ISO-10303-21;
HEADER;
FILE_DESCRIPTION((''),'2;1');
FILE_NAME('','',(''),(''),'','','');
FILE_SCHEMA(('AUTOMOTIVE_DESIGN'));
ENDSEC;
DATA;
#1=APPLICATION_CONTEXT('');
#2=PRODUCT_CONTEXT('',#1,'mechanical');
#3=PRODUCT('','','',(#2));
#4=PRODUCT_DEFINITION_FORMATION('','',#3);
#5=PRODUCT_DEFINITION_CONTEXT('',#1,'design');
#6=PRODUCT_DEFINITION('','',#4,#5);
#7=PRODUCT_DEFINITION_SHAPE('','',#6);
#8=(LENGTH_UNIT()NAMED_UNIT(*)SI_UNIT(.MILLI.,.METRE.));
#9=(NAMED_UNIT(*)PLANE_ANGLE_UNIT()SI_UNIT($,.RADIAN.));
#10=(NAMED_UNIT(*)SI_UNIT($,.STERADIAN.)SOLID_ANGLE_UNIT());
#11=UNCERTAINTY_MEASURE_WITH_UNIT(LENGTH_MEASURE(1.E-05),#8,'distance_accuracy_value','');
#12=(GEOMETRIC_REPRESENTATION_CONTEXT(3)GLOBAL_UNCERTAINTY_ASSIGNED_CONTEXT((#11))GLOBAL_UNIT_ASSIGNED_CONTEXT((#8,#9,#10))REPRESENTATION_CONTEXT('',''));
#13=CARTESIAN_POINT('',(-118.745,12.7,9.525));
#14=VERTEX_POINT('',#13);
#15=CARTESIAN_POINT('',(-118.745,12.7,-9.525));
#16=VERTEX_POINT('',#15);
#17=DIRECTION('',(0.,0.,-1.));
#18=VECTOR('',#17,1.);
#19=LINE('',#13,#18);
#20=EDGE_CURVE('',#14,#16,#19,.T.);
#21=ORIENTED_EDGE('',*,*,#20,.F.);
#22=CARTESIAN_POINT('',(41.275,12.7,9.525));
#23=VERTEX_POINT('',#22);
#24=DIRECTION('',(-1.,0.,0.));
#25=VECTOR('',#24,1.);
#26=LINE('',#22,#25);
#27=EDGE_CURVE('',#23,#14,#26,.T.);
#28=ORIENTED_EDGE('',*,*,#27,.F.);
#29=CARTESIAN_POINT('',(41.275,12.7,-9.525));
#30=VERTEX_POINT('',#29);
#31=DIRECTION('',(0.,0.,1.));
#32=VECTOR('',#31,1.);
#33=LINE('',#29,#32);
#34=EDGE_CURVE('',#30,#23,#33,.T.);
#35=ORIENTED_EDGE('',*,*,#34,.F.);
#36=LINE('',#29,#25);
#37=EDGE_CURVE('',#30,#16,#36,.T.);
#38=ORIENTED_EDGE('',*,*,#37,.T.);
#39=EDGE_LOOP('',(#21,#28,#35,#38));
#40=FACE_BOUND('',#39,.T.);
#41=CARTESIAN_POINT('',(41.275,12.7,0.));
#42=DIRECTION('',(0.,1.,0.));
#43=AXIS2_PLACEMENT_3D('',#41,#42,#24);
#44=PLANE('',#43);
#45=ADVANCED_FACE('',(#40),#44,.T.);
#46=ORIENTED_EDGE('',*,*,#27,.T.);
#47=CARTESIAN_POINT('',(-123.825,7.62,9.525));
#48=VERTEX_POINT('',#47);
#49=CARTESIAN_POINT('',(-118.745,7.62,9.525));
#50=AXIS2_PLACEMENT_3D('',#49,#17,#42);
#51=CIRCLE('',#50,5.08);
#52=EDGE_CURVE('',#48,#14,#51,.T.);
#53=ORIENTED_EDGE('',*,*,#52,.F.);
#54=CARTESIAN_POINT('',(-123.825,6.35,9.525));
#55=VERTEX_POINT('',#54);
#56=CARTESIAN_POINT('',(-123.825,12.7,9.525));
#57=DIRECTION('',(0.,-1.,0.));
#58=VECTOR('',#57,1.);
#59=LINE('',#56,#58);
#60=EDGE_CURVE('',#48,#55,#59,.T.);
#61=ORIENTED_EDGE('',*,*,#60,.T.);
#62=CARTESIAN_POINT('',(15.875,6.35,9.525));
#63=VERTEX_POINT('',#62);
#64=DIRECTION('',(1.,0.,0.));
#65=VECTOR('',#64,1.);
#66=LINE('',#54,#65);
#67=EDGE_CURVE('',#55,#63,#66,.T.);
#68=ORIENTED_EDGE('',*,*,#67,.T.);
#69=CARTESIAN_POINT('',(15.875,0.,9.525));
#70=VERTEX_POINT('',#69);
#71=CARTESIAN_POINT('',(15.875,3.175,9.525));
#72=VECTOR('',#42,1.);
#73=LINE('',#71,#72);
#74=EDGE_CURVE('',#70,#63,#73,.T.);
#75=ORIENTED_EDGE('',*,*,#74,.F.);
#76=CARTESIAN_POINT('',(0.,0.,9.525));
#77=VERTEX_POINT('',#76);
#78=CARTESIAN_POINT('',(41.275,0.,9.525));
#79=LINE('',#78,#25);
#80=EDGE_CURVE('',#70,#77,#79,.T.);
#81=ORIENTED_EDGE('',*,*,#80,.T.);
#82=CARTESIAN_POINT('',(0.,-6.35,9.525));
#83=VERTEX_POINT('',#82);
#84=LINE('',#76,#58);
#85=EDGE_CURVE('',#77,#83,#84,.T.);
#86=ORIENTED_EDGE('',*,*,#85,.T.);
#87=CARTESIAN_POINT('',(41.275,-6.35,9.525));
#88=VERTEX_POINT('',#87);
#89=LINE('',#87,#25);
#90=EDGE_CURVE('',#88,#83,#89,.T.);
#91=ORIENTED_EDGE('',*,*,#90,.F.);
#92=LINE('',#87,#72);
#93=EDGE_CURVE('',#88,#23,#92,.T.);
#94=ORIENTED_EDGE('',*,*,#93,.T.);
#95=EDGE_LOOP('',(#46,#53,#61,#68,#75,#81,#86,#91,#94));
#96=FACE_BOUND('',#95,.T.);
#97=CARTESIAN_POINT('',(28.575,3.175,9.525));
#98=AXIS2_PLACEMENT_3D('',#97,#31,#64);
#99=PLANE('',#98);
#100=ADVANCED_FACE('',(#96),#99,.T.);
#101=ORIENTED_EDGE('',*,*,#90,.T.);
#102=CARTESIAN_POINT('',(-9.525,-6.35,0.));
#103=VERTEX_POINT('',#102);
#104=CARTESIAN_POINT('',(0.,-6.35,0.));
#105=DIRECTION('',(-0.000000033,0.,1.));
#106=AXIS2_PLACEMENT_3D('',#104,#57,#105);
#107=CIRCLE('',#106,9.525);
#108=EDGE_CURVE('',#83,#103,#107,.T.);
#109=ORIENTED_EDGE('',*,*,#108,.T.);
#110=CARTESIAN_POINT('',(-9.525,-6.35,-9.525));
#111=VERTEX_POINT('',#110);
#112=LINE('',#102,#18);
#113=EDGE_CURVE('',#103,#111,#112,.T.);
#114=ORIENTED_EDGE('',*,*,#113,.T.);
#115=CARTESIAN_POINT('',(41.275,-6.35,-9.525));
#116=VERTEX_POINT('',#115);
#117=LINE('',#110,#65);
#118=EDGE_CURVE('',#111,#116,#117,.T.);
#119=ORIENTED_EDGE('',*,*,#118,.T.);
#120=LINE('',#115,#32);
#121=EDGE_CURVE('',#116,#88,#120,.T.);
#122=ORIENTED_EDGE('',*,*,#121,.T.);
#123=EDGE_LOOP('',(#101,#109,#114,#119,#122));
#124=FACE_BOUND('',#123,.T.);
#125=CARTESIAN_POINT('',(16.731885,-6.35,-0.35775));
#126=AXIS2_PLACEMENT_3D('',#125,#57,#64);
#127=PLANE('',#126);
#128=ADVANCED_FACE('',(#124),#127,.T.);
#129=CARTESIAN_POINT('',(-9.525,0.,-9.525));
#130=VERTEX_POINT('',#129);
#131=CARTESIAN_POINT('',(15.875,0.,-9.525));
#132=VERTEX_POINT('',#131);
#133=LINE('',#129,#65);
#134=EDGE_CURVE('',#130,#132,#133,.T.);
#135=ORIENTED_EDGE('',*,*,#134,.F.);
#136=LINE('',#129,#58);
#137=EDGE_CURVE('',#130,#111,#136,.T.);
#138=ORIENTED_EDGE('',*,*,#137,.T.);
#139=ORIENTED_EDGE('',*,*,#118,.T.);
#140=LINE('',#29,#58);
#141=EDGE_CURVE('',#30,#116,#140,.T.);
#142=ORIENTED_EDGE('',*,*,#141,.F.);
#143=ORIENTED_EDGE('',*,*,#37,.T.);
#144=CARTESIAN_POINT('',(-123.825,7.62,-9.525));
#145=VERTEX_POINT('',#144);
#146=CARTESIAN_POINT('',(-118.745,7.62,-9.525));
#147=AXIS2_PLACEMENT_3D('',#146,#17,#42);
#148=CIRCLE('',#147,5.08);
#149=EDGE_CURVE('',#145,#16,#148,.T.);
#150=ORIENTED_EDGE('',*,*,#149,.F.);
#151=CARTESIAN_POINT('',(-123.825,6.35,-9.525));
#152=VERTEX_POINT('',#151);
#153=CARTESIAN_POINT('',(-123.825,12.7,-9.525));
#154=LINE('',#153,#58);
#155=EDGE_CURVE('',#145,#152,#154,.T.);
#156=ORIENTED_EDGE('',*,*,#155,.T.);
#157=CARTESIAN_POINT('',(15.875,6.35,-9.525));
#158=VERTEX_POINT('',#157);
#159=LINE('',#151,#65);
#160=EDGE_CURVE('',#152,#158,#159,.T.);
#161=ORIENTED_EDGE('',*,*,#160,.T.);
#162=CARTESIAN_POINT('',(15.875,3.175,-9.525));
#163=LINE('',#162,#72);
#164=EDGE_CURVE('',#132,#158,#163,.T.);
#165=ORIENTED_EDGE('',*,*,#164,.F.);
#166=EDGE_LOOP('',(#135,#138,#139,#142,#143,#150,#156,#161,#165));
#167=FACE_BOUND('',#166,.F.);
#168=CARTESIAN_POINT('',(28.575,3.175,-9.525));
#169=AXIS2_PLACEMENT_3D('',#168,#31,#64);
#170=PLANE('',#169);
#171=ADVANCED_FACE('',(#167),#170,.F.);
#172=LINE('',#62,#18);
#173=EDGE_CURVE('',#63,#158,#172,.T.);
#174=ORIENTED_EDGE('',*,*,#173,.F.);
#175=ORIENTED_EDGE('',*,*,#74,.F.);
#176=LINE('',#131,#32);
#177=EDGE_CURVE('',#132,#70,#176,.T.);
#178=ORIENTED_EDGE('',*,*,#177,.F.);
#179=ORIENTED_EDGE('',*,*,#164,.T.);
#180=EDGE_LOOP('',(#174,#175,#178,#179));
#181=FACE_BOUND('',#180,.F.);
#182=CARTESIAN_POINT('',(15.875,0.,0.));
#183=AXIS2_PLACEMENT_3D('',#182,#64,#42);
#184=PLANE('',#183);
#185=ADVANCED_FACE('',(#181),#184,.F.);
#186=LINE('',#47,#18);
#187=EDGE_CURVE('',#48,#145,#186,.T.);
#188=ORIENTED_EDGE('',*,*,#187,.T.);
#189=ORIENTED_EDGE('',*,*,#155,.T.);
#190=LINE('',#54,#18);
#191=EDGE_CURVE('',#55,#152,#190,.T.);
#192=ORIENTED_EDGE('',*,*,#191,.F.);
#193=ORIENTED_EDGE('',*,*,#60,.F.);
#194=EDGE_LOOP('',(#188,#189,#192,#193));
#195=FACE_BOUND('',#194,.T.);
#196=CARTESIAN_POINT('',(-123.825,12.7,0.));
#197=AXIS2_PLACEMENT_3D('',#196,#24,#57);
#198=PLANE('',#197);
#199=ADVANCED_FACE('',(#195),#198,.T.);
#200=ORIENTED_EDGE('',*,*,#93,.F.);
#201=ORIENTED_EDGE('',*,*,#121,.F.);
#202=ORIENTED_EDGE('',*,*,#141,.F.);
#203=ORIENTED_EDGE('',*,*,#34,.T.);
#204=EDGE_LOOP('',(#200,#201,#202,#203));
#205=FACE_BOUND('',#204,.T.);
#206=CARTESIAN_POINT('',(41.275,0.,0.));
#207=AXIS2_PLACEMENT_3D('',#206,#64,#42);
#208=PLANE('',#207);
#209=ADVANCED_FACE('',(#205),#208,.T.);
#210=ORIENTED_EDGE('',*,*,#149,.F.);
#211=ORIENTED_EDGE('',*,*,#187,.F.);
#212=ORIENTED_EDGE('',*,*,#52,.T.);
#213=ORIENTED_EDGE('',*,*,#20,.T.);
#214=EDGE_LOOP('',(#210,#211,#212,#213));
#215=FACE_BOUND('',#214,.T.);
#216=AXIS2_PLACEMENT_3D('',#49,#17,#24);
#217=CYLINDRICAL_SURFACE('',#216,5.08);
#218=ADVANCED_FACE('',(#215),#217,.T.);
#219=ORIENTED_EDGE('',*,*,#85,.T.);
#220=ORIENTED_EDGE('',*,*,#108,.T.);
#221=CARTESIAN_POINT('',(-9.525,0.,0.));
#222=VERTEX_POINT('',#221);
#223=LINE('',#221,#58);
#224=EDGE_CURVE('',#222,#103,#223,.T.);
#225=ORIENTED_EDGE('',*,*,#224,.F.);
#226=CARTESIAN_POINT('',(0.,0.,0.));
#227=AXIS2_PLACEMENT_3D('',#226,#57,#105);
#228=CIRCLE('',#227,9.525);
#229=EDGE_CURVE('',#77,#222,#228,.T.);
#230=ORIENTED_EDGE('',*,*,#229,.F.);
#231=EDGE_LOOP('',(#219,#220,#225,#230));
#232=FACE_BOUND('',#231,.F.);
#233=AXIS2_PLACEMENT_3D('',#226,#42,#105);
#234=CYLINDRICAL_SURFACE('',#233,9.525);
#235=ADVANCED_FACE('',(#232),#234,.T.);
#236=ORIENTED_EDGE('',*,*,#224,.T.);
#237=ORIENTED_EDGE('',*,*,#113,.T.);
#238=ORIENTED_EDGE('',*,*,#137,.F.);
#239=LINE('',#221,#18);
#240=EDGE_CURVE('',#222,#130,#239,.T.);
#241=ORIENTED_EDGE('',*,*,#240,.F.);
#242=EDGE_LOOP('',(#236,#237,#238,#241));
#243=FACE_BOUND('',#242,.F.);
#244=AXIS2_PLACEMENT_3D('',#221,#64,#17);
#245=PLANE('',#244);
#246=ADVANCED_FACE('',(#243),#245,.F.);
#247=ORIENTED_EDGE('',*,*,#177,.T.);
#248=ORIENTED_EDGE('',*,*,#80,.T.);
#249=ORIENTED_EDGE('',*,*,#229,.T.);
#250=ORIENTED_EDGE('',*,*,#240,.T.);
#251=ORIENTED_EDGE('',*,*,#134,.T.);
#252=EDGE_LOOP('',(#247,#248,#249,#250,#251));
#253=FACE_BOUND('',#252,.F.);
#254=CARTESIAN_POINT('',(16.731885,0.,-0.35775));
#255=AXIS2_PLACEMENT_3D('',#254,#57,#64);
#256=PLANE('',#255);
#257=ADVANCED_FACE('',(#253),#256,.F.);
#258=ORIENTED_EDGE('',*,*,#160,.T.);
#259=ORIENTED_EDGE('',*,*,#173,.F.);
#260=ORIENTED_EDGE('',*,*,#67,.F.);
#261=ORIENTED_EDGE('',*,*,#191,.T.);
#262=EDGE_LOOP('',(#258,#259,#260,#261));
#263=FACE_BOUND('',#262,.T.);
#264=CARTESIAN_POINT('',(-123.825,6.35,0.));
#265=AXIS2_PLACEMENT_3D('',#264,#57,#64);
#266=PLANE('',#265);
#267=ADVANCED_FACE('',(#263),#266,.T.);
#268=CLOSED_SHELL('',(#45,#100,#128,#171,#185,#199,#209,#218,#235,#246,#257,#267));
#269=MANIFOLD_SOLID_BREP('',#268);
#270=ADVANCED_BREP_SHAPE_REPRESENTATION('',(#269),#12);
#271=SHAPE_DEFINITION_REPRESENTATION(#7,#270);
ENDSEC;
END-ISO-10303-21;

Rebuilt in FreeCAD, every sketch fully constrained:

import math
import FreeCAD as App
import Part
import Sketcher
from FreeCAD import Vector
Q = App.Units.Quantity


def edges_at(feature, points):
    """Names of the edges that pass closest to the given points."""
    edges = feature.Shape.Edges
    near = lambda p: min(range(len(edges)), key=lambda i: edges[i].distToShape(Part.Vertex(*p))[0])
    return sorted({f"Edge{near(p) + 1}" for p in points})


def add_polygon(sketch, points):
    """Adds a closed chain of lines whose ends are joined by coincident constraints."""
    first, n = sketch.GeometryCount, len(points)
    for a, b in zip(points, points[1:] + points[:1]):
        sketch.addGeometry(Part.LineSegment(App.Vector(*a, 0), App.Vector(*b, 0)), False)
    for i in range(n):
        sketch.addConstraint(Sketcher.Constraint("Coincident", first + i, 2, first + (i + 1) % n, 1))

doc = App.newDocument("Part")
body = doc.addObject("PartDesign::Body", "Body")

sketch1 = body.newObject("Sketcher::SketchObject", "Sketch")
sketch1.AttachmentSupport = (doc.getObject("XZ_Plane"), [""])
sketch1.MapMode = "FlatFace"
sketch1.addGeometry([
    Part.LineSegment(Vector(-10, -10, 0), Vector(41, -10, 0)),
    Part.LineSegment(Vector(41, -10, 0), Vector(41, 10, 0)),
    Part.LineSegment(Vector(41, 10, 0), Vector(0, 10, 0)),
    Part.ArcOfCircle(Part.Circle(Vector(0, 0, 0), Vector(0, 0, 1), 10), math.radians(90), math.radians(180)),
    Part.LineSegment(Vector(-10, 0, 0), Vector(-10, -10, 0)),
], False)
sketch1.addConstraint([
    Sketcher.Constraint("Coincident", 0, 2, 1, 1),
    Sketcher.Constraint("Coincident", 1, 2, 2, 1),
    Sketcher.Constraint("Tangent", 2, 2, 3, 1),
    Sketcher.Constraint("Tangent", 3, 2, 4, 1),
    Sketcher.Constraint("Coincident", 4, 2, 0, 1),
    Sketcher.Constraint("Horizontal", 0),
    Sketcher.Constraint("Vertical", 1),
    Sketcher.Constraint("Horizontal", 2),
    Sketcher.Constraint("Vertical", 4),
    Sketcher.Constraint("Coincident", 3, 3, -1, 1),
    Sketcher.Constraint("DistanceX", 0, 1, 0, 2, Q("2 in")),
    Sketcher.Constraint("Radius", 3, Q("0.375 in")),
    Sketcher.Constraint("DistanceY", 1, 1, 1, 2, Q("0.75 in")),
])
pad1 = body.newObject("PartDesign::Pad", "Pad")
pad1.Profile = sketch1
pad1.Length = Q("0.25 in")

sketch2 = body.newObject("Sketcher::SketchObject", "Sketch001")
sketch2.AttachmentSupport = (doc.getObject("XY_Plane"), [""])
sketch2.MapMode = "FlatFace"
add_polygon(sketch2, [(16, 6), (16, 0), (41, 0), (41, 13), (-124, 13), (-124, 6)])
sketch2.addConstraint([
    Sketcher.Constraint("Vertical", 0),
    Sketcher.Constraint("Horizontal", 1),
    Sketcher.Constraint("Vertical", 2),
    Sketcher.Constraint("Horizontal", 3),
    Sketcher.Constraint("Vertical", 4),
    Sketcher.Constraint("Horizontal", 5),
    Sketcher.Constraint("PointOnObject", 0, 2, -1),
    Sketcher.Constraint("Equal", 0, 4),
    Sketcher.Constraint("DistanceX", 1, 1, 1, 2, Q("1 in")),
    Sketcher.Constraint("DistanceX", 3, 2, 3, 1, Q("6.5 in")),
    Sketcher.Constraint("DistanceY", 2, 1, 2, 2, Q("0.5 in")),
    Sketcher.Constraint("DistanceX", -1, 1, 0, 2, Q("0.625 in")),
])
pad2 = body.newObject("PartDesign::Pad", "Pad001")
pad2.Profile = sketch2
pad2.Length = Q("0.75 in")
pad2.Midplane = True
doc.recompute()

fillet = body.newObject("PartDesign::Fillet", "Fillet")
fillet.Base = (pad2, edges_at(pad2, [(-123.825, 12.7, 0)]))
fillet.Radius = Q("0.2 in")

doc.recompute()
